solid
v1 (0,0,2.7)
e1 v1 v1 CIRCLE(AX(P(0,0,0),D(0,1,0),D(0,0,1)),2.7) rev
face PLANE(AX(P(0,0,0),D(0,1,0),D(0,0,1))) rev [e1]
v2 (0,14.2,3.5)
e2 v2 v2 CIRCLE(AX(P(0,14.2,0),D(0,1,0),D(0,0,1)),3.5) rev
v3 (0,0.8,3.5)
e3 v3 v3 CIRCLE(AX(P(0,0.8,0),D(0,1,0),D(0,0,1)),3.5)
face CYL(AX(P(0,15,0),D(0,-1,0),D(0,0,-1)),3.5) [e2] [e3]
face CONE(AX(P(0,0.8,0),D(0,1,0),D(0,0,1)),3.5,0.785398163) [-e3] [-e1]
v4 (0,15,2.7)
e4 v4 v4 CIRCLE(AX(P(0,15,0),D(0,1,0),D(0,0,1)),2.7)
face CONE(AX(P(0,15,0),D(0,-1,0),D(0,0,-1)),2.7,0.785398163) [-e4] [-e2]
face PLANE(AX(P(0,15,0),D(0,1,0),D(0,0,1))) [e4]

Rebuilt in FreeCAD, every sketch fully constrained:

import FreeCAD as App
import Part
import Sketcher
from FreeCAD import Vector


def edges_at(feature, points):
    """Names of the edges that pass closest to the given points."""
    edges = feature.Shape.Edges
    near = lambda p: min(range(len(edges)), key=lambda i: edges[i].distToShape(Part.Vertex(*p))[0])
    return sorted({f"Edge{near(p) + 1}" for p in points})

doc = App.newDocument("Part")
params = doc.addObject("Spreadsheet::Sheet", "Params")
for row, (alias, value) in enumerate([
    ("sketch1_diameter", "7 mm"),
    ("pad1_length", "15 mm"),
    ("chamfer_size", "0.8 mm"),
], start=1):
    params.set(f"A{row}", alias)
    params.set(f"B{row}", "=" + value)
    params.setAlias(f"B{row}", alias)

body = doc.addObject("PartDesign::Body", "Body")

# Sketch on XZ plane
sketch1 = doc.addObject("Sketcher::SketchObject", "Sketch")
body.addObject(sketch1)
sketch1.AttachmentSupport = (doc.XZ_Plane, [""])
sketch1.MapMode = "FlatFace"
sketch1.addGeometry(Part.Circle(Vector(0, 0, 0), Vector(0, 0, 1), 3.5), False)
sketch1.addConstraint([
    Sketcher.Constraint("Coincident", 0, 3, -1, 1),
    Sketcher.Constraint("Diameter", 0, 7.0),
])
sketch1.setExpression("Constraints[1]", "Params.sketch1_diameter")
pad1 = doc.addObject("PartDesign::Pad", "Pad")
body.addObject(pad1)
pad1.Profile = sketch1
pad1.setExpression("Length", "Params.pad1_length")
pad1.Reversed = True
doc.recompute()

chamfer = doc.addObject("PartDesign::Chamfer", "Chamfer")
body.addObject(chamfer)
chamfer.Base = (pad1, edges_at(pad1, [(0, 0, -3.5), (0, 15, -3.5)]))
chamfer.setExpression("Size", "Params.chamfer_size")

doc.recompute()
